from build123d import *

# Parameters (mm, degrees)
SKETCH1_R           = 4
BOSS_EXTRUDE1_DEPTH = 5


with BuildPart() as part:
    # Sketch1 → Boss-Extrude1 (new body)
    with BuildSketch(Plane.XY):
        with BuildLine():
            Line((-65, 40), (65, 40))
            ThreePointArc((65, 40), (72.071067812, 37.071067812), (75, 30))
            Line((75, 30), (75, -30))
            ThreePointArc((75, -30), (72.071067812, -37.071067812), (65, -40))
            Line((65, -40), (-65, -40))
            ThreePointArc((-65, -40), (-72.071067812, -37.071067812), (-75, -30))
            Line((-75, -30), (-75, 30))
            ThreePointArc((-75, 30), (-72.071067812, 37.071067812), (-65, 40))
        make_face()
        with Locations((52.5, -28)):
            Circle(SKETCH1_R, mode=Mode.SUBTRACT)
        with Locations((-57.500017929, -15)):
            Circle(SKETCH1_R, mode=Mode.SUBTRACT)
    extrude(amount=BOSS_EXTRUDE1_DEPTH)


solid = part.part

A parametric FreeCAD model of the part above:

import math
import FreeCAD as App
import Part
import Sketcher

doc = App.newDocument("Part")
body = doc.addObject("PartDesign::Body", "Body")

sketch1 = doc.addObject("Sketcher::SketchObject", "Sketch")
body.addObject(sketch1)
sketch1.AttachmentSupport = (doc.XY_Plane, [""])
sketch1.MapMode = "FlatFace"
sketch1.addGeometry([
    Part.LineSegment(App.Vector(65, 40, 0), App.Vector(-65, 40, 0)),
    Part.ArcOfCircle(Part.Circle(App.Vector(-65, 30, 0), App.Vector(0, 0, 1), 10), math.radians(90), math.radians(180)),
    Part.LineSegment(App.Vector(-75, 30, 0), App.Vector(-75, -30, 0)),
    Part.ArcOfCircle(Part.Circle(App.Vector(-65, -30, 0), App.Vector(0, 0, 1), 10), math.radians(180), math.radians(270)),
    Part.LineSegment(App.Vector(-65, -40, 0), App.Vector(65, -40, 0)),
    Part.ArcOfCircle(Part.Circle(App.Vector(65, -30, 0), App.Vector(0, 0, 1), 10), math.radians(-90), math.radians(0)),
    Part.LineSegment(App.Vector(75, -30, 0), App.Vector(75, 30, 0)),
    Part.ArcOfCircle(Part.Circle(App.Vector(65, 30, 0), App.Vector(0, 0, 1), 10), math.radians(0), math.radians(90)),
    Part.Circle(App.Vector(52.5, -28, 0), App.Vector(0, 0, 1), 4),
    Part.Circle(App.Vector(-57.5, -15, 0), App.Vector(0, 0, 1), 4),
], False)
sketch1.addConstraint([
    Sketcher.Constraint("Tangent", 0, 2, 1, 1),
    Sketcher.Constraint("Tangent", 1, 2, 2, 1),
    Sketcher.Constraint("Tangent", 2, 2, 3, 1),
    Sketcher.Constraint("Tangent", 3, 2, 4, 1),
    Sketcher.Constraint("Tangent", 4, 2, 5, 1),
    Sketcher.Constraint("Tangent", 5, 2, 6, 1),
    Sketcher.Constraint("Tangent", 6, 2, 7, 1),
    Sketcher.Constraint("Tangent", 7, 2, 0, 1),
    Sketcher.Constraint("Horizontal", 0),
    Sketcher.Constraint("Vertical", 2),
    Sketcher.Constraint("Horizontal", 4),
    Sketcher.Constraint("Vertical", 6),
    Sketcher.Constraint("Equal", 1, 3),
    Sketcher.Constraint("Equal", 3, 5),
    Sketcher.Constraint("Equal", 5, 7),
    Sketcher.Constraint("Equal", 8, 9),
    Sketcher.Constraint("Symmetric", 1, 3, 5, 3, -1, 1),
    Sketcher.Constraint("Diameter", 8, 8.0),
    Sketcher.Constraint("Radius", 1, 10.0),
    Sketcher.Constraint("DistanceX", 0, 2, 0, 1, 130.0),
    Sketcher.Constraint("DistanceY", 2, 2, 2, 1, 60.0),
    Sketcher.Constraint("DistanceY", 8, 3, -1, 1, 28.0),
    Sketcher.Constraint("DistanceY", 9, 3, -1, 1, 15.0),
    Sketcher.Constraint("DistanceX", -1, 1, 8, 3, 52.5),
    Sketcher.Constraint("DistanceX", 9, 3, -1, 1, 57.500018),
])
pad1 = doc.addObject("PartDesign::Pad", "Pad")
body.addObject(pad1)
pad1.Profile = sketch1
pad1.Length = 5

doc.recompute()
